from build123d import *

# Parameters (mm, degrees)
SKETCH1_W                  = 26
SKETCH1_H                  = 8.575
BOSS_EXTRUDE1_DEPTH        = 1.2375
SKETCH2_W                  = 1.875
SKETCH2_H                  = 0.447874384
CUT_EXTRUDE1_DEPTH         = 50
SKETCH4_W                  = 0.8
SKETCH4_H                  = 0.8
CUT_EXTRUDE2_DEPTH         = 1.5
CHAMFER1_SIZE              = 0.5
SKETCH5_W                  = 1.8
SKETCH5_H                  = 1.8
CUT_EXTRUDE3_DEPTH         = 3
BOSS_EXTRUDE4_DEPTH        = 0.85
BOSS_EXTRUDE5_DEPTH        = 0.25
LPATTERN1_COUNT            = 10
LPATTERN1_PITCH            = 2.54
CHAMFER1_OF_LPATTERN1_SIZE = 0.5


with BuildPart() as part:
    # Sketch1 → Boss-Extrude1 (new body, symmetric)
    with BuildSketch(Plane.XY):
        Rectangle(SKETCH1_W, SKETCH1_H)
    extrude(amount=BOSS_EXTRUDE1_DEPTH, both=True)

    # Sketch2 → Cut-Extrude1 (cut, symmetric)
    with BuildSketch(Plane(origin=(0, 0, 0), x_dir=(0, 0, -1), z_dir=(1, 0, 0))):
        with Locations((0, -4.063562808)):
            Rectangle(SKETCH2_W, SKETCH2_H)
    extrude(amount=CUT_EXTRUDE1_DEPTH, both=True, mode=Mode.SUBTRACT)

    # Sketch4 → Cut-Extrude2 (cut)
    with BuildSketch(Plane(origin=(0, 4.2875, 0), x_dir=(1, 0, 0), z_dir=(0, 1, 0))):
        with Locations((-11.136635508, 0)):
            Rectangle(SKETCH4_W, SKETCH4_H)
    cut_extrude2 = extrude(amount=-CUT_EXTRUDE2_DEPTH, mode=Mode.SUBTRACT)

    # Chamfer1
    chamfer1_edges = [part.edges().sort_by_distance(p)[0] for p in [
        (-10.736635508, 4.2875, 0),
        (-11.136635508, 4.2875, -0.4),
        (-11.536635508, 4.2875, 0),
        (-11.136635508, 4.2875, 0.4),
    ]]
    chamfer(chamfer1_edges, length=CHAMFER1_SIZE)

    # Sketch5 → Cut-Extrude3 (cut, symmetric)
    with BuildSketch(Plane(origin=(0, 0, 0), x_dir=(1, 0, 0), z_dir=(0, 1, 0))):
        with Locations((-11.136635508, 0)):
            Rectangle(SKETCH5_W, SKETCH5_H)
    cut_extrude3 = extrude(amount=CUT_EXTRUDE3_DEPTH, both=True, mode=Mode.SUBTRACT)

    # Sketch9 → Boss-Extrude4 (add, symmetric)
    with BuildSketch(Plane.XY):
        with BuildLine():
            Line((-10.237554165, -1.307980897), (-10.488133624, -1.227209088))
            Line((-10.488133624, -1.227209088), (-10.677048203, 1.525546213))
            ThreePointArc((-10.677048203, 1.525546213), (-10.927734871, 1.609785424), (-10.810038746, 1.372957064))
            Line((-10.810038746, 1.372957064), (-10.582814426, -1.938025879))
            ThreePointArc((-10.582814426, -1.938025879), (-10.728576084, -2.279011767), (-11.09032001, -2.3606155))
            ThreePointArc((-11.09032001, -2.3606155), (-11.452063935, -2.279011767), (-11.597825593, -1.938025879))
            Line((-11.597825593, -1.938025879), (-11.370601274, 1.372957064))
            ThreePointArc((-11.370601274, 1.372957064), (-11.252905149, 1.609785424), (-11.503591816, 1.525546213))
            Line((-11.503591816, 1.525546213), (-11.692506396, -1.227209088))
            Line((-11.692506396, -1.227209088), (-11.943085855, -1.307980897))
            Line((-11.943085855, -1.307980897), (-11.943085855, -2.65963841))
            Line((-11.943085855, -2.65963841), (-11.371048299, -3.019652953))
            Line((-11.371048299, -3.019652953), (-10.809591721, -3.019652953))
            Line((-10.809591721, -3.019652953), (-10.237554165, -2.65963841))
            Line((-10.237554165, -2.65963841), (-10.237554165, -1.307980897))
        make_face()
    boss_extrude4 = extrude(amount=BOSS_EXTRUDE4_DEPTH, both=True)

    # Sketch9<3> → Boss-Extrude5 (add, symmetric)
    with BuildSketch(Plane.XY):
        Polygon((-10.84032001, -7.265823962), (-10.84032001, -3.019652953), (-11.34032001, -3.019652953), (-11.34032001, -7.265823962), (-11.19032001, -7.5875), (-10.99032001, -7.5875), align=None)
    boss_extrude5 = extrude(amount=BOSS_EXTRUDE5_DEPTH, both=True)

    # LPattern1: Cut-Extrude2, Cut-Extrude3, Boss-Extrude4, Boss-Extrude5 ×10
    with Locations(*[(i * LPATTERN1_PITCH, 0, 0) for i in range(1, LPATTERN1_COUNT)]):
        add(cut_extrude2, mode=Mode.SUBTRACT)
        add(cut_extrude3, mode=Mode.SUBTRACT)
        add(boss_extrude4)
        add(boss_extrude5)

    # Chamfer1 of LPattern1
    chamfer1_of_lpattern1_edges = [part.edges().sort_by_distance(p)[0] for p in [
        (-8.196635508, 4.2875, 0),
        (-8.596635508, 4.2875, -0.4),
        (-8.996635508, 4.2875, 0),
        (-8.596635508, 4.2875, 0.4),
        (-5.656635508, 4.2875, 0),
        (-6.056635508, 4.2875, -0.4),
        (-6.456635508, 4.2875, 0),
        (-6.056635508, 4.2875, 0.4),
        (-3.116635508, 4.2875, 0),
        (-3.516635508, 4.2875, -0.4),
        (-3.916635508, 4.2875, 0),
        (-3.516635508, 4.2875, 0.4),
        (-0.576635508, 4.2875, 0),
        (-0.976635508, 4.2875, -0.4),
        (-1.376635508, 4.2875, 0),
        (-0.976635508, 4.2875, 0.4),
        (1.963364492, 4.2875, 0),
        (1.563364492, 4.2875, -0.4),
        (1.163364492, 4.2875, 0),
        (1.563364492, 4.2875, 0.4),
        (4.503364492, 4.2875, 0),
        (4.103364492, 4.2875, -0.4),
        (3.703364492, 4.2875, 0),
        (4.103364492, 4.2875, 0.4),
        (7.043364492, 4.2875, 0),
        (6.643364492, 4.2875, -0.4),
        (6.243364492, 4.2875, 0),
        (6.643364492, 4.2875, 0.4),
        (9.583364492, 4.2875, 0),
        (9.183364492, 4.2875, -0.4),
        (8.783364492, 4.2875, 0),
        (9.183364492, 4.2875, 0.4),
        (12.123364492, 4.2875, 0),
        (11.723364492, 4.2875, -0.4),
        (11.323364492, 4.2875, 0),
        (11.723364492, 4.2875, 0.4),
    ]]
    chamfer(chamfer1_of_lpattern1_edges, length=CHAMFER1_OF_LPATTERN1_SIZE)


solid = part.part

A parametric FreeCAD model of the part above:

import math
import FreeCAD as App
import Part
import Sketcher
Q = App.Units.Quantity


def edges_at(feature, points):
    """Names of the edges that pass closest to the given points."""
    edges = feature.Shape.Edges
    near = lambda p: min(range(len(edges)), key=lambda i: edges[i].distToShape(Part.Vertex(*p))[0])
    return sorted({f"Edge{near(p) + 1}" for p in points})


def add_polygon(sketch, points):
    """Adds a closed chain of lines whose ends are joined by coincident constraints."""
    first, n = sketch.GeometryCount, len(points)
    for a, b in zip(points, points[1:] + points[:1]):
        sketch.addGeometry(Part.LineSegment(App.Vector(*a, 0), App.Vector(*b, 0)), False)
    for i in range(n):
        sketch.addConstraint(Sketcher.Constraint("Coincident", first + i, 2, first + (i + 1) % n, 1))

doc = App.newDocument("Part")
body = doc.addObject("PartDesign::Body", "Body")

# Sketch on XY plane
sketch1 = body.newObject("Sketcher::SketchObject", "Sketch")
sketch1.AttachmentSupport = (doc.getObject("XY_Plane"), [""])
sketch1.MapMode = "FlatFace"
add_polygon(sketch1, [(-13, 4.2875), (-13, -4.2875), (13, -4.2875), (13, 4.2875)])  # lines 0-3
sketch1.addConstraint([
    Sketcher.Constraint("Vertical", 0),
    Sketcher.Constraint("Horizontal", 1),
    Sketcher.Constraint("Vertical", 2),
    Sketcher.Constraint("Horizontal", 3),
    Sketcher.Constraint("Symmetric", 0, 2, 2, 2, -1, 1),
    Sketcher.Constraint("DistanceX", 1, 1, 1, 2, Q("26 mm")),
    Sketcher.Constraint("DistanceY", 0, 2, 0, 1, Q("8.575 mm")),
])
pad1 = body.newObject("PartDesign::Pad", "Pad")
pad1.Profile = sketch1
pad1.Length = 2.475
pad1.Midplane = True

# Sketch on YZ plane
sketch2 = body.newObject("Sketcher::SketchObject", "Sketch001")
sketch2.AttachmentSupport = (doc.getObject("YZ_Plane"), [""])
sketch2.MapMode = "FlatFace"
add_polygon(sketch2, [(-3.839626, 0.9375), (-4.2875, 0.9375), (-4.2875, -0.9375), (-3.839626, -0.9375)])  # lines 0-3
sketch2.addConstraint([
    Sketcher.Constraint("Horizontal", 0),
    Sketcher.Constraint("Vertical", 1),
    Sketcher.Constraint("Horizontal", 2),
    Sketcher.Constraint("Vertical", 3),
    Sketcher.Constraint("DistanceY", 1, 2, 1, 1, Q("1.875 mm")),
    Sketcher.Constraint("DistanceX", 0, 2, -1, 1, Q("4.2875 mm")),
    Sketcher.Constraint("DistanceY", -1, 1, 0, 2, Q("0.9375 mm")),
    Sketcher.Constraint("DistanceX", 0, 2, 0, 1, Q("0.447874 mm")),
])
pocket1 = body.newObject("PartDesign::Pocket", "Pocket")
pocket1.Profile = sketch2
pocket1.Length = 100
pocket1.Midplane = True

# Sketch on XZ plane
sketch3 = body.newObject("Sketcher::SketchObject", "Sketch002")
sketch3.AttachmentSupport = (doc.getObject("XZ_Plane"), [""])
sketch3.MapMode = "FlatFace"
sketch3.AttachmentOffset = App.Placement(App.Vector(0, 0, -4.2875), App.Rotation())
add_polygon(sketch3, [(-11.536636, -0.4), (-11.536636, 0.4), (-10.736636, 0.4), (-10.736636, -0.4)])  # lines 0-3
sketch3.addConstraint([
    Sketcher.Constraint("Vertical", 0),
    Sketcher.Constraint("Horizontal", 1),
    Sketcher.Constraint("Vertical", 2),
    Sketcher.Constraint("Horizontal", 3),
    Sketcher.Constraint("Equal", 3, 0),
    Sketcher.Constraint("DistanceX", 1, 1, 1, 2, Q("0.8 mm")),
    Sketcher.Constraint("DistanceY", -1, 1, 0, 2, Q("0.4 mm")),
    Sketcher.Constraint("DistanceX", 0, 2, -1, 1, Q("11.536636 mm")),
])
pocket2 = body.newObject("PartDesign::Pocket", "Pocket001")
pocket2.Profile = sketch3
pocket2.Length = 1.5
pocket2.Reversed = True
doc.recompute()

chamfer = body.newObject("PartDesign::Chamfer", "Chamfer")
chamfer.Base = (pocket2, edges_at(pocket2, [
    (-10.737, 4.287, 0),
    (-11.137, 4.287, -0.4),
    (-11.537, 4.287, 0),
    (-11.137, 4.287, 0.4),
]))
chamfer.Size = 0.5

# Sketch on XZ plane
sketch4 = body.newObject("Sketcher::SketchObject", "Sketch003")
sketch4.AttachmentSupport = (doc.getObject("XZ_Plane"), [""])
sketch4.MapMode = "FlatFace"
add_polygon(sketch4, [(-12.036636, -0.9), (-12.036636, 0.9), (-10.236636, 0.9), (-10.236636, -0.9)])  # lines 0-3
sketch4.addConstraint([
    Sketcher.Constraint("Vertical", 0),
    Sketcher.Constraint("Horizontal", 1),
    Sketcher.Constraint("Vertical", 2),
    Sketcher.Constraint("Horizontal", 3),
    Sketcher.Constraint("Equal", 3, 0),
    Sketcher.Constraint("DistanceX", 1, 1, 1, 2, Q("1.8 mm")),
    Sketcher.Constraint("DistanceY", -1, 1, 0, 2, Q("0.9 mm")),
    Sketcher.Constraint("DistanceX", 0, 2, -1, 1, Q("12.036636 mm")),
])
pocket3 = body.newObject("PartDesign::Pocket", "Pocket002")
pocket3.Profile = sketch4
pocket3.Length = 6
pocket3.Midplane = True

# Sketch on XY plane
sketch5 = body.newObject("Sketcher::SketchObject", "Sketch004")
sketch5.AttachmentSupport = (doc.getObject("XY_Plane"), [""])
sketch5.MapMode = "FlatFace"
sketch5.addGeometry([
    Part.LineSegment(App.Vector(-10.237554, -1.307981, 0), App.Vector(-10.488134, -1.227209, 0)),  # 0
    Part.LineSegment(App.Vector(-10.488134, -1.227209, 0), App.Vector(-10.677048, 1.525546, 0)),  # 1
    Part.ArcOfCircle(Part.Circle(App.Vector(-10.819838, 1.515747, 0), App.Vector(0, 0, 1), 0.143126), math.radians(3.925908), math.radians(273.925908)),  # 2
    Part.LineSegment(App.Vector(-10.810039, 1.372957, 0), App.Vector(-10.582814, -1.938026, 0)),  # 3
    Part.ArcOfCircle(Part.Circle(App.Vector(-10.989281, -1.965921, 0), App.Vector(0, 0, 1), 0.407422), math.radians(-104.35898), math.radians(3.925908)),  # 4
    Part.ArcOfCircle(Part.Circle(App.Vector(-11.191359, -1.965921, 0), App.Vector(0, 0, 1), 0.407422), math.radians(176.074092), math.radians(284.35898)),  # 5
    Part.LineSegment(App.Vector(-11.597826, -1.938026, 0), App.Vector(-11.370601, 1.372957, 0)),  # 6
    Part.ArcOfCircle(Part.Circle(App.Vector(-11.360802, 1.515747, 0), App.Vector(0, 0, 1), 0.143126), math.radians(-93.925908), math.radians(176.074092)),  # 7
    Part.LineSegment(App.Vector(-11.503592, 1.525546, 0), App.Vector(-11.692506, -1.227209, 0)),  # 8
    Part.LineSegment(App.Vector(-11.692506, -1.227209, 0), App.Vector(-11.943086, -1.307981, 0)),  # 9
    Part.LineSegment(App.Vector(-11.943086, -1.307981, 0), App.Vector(-11.943086, -2.659638, 0)),  # 10
    Part.LineSegment(App.Vector(-11.943086, -2.659638, 0), App.Vector(-11.371048, -3.019653, 0)),  # 11
    Part.LineSegment(App.Vector(-11.371048, -3.019653, 0), App.Vector(-10.809592, -3.019653, 0)),  # 12
    Part.LineSegment(App.Vector(-10.809592, -3.019653, 0), App.Vector(-10.237554, -2.659638, 0)),  # 13
    Part.LineSegment(App.Vector(-10.237554, -2.659638, 0), App.Vector(-10.237554, -1.307981, 0)),  # 14
], False)
sketch5.addConstraint([
    Sketcher.Constraint("Coincident", 0, 2, 1, 1),
    Sketcher.Constraint("Tangent", 1, 2, 2, 1),
    Sketcher.Constraint("Coincident", 2, 2, 3, 1),
    Sketcher.Constraint("Tangent", 3, 2, 4, 2),
    Sketcher.Constraint("Coincident", 4, 1, 5, 2),
    Sketcher.Constraint("Tangent", 5, 1, 6, 1),
    Sketcher.Constraint("Coincident", 6, 2, 7, 1),
    Sketcher.Constraint("Tangent", 7, 2, 8, 1),
    Sketcher.Constraint("Coincident", 8, 2, 9, 1),
    Sketcher.Constraint("Coincident", 9, 2, 10, 1),
    Sketcher.Constraint("Coincident", 10, 2, 11, 1),
    Sketcher.Constraint("Coincident", 11, 2, 12, 1),
    Sketcher.Constraint("Coincident", 12, 2, 13, 1),
    Sketcher.Constraint("Coincident", 13, 2, 14, 1),
    Sketcher.Constraint("Coincident", 14, 2, 0, 1),
    Sketcher.Constraint("Vertical", 10),
    Sketcher.Constraint("Horizontal", 12),
    Sketcher.Constraint("Vertical", 14),
    Sketcher.Constraint("Equal", 4, 5),
    Sketcher.Constraint("Equal", 2, 7),
    Sketcher.Constraint("Parallel", 1, 3),
    Sketcher.Constraint("Parallel", 6, 8),
    Sketcher.Constraint("Horizontal", 4, 3, 5, 3),
    Sketcher.Constraint("Horizontal", 2, 3, 7, 3),
    Sketcher.Constraint("Horizontal", 3, 2, 5, 1),
    Sketcher.Constraint("Horizontal", 2, 2, 6, 2),
    Sketcher.Constraint("Horizontal", 0, 2, 8, 2),
    Sketcher.Constraint("Horizontal", 10, 2, 13, 2),
    Sketcher.Constraint("Horizontal", 9, 2, 14, 2),
    Sketcher.Constraint("Equal", 0, 9),
    Sketcher.Constraint("Equal", 11, 13),
    Sketcher.Constraint("Radius", 2, Q("0.143126 mm")),
    Sketcher.Constraint("Radius", 4, Q("0.407422 mm")),
    Sketcher.Constraint("DistanceX", 7, 3, -1, 1, Q("11.360802 mm")),
    Sketcher.Constraint("DistanceX", 6, 2, -1, 1, Q("11.370601 mm")),
    Sketcher.Constraint("DistanceY", 2, 3, 1, 2, Q("0.009799 mm")),
    Sketcher.Constraint("Distance", 1, Q("2.75923 mm")),
    Sketcher.Constraint("Distance", 3, Q("3.318771 mm")),
    Sketcher.Constraint("DistanceX", 12, 1, 12, 2, Q("0.561457 mm")),
    Sketcher.Constraint("DistanceY", 10, 2, 10, 1, Q("1.351658 mm")),
    Sketcher.Constraint("DistanceX", 2, 3, -1, 1, Q("10.819838 mm")),
    Sketcher.Constraint("DistanceY", 4, 3, -1, 1, Q("1.965921 mm")),
    Sketcher.Constraint("DistanceY", 9, 2, -1, 1, Q("1.307981 mm")),
    Sketcher.Constraint("DistanceX", 9, 2, 8, 2, Q("0.250579 mm")),
    Sketcher.Constraint("Distance", 11, Q("0.675898 mm")),
])
pad2 = body.newObject("PartDesign::Pad", "Pad001")
pad2.Profile = sketch5
pad2.Length = 1.7
pad2.Midplane = True

# Sketch on XY plane
sketch6 = body.newObject("Sketcher::SketchObject", "Sketch005")
sketch6.AttachmentSupport = (doc.getObject("XY_Plane"), [""])
sketch6.MapMode = "FlatFace"
add_polygon(sketch6, [(-10.84032, -7.265824), (-10.84032, -3.019653), (-11.34032, -3.019653), (-11.34032, -7.265824), (-11.19032, -7.5875), (-10.99032, -7.5875)])  # lines 0-5
sketch6.addConstraint([
    Sketcher.Constraint("Vertical", 0),
    Sketcher.Constraint("Horizontal", 1),
    Sketcher.Constraint("Vertical", 2),
    Sketcher.Constraint("Horizontal", 4),
    Sketcher.Constraint("Horizontal", 2, 2, 5, 2),
    Sketcher.Constraint("Equal", 3, 5),
    Sketcher.Constraint("Angle", 3, Q("-65 deg")),
    Sketcher.Constraint("DistanceX", 1, 2, 1, 1, Q("0.5 mm")),
    Sketcher.Constraint("DistanceX", 4, 1, 4, 2, Q("0.2 mm")),
    Sketcher.Constraint("DistanceY", 0, 1, 0, 2, Q("4.246171 mm")),
    Sketcher.Constraint("DistanceY", 3, 2, -1, 1, Q("7.5875 mm")),
    Sketcher.Constraint("DistanceX", 0, 2, -1, 1, Q("10.84032 mm")),
])
pad3 = body.newObject("PartDesign::Pad", "Pad002")
pad3.Profile = sketch6
pad3.Length = 0.5
pad3.Midplane = True
doc.recompute()

linearpattern = body.newObject("PartDesign::LinearPattern", "LinearPattern")
linearpattern.Originals = [pocket2, pocket3, pad2, pad3]
linearpattern.Direction = (doc.getObject("X_Axis"), [""])
linearpattern.Mode = "offset"
linearpattern.Offset = 2.54
linearpattern.Occurrences = 10
body.Tip = linearpattern
doc.recompute()

chamfer2 = body.newObject("PartDesign::Chamfer", "Chamfer001")
chamfer2.Base = (linearpattern, edges_at(linearpattern, [
    (-8.197, 4.287, 0),
    (-8.597, 4.287, -0.4),
    (-8.997, 4.287, 0),
    (-8.597, 4.287, 0.4),
    (-5.657, 4.287, 0),
    (-6.057, 4.287, -0.4),
    (-6.457, 4.287, 0),
    (-6.057, 4.287, 0.4),
    (-3.117, 4.287, 0),
    (-3.517, 4.287, -0.4),
    (-3.917, 4.287, 0),
    (-3.517, 4.287, 0.4),
    (-0.577, 4.287, 0),
    (-0.977, 4.287, -0.4),
    (-1.377, 4.287, 0),
    (-0.977, 4.287, 0.4),
    (1.963, 4.287, 0),
    (1.563, 4.287, -0.4),
    (1.163, 4.287, 0),
    (1.563, 4.287, 0.4),
    (4.503, 4.287, 0),
    (4.103, 4.287, -0.4),
    (3.703, 4.287, 0),
    (4.103, 4.287, 0.4),
    (7.043, 4.287, 0),
    (6.643, 4.287, -0.4),
    (6.243, 4.287, 0),
    (6.643, 4.287, 0.4),
    (9.583, 4.287, 0),
    (9.183, 4.287, -0.4),
    (8.783, 4.287, 0),
    (9.183, 4.287, 0.4),
    (12.123, 4.287, 0),
    (11.723, 4.287, -0.4),
    (11.323, 4.287, 0),
    (11.723, 4.287, 0.4),
]))
chamfer2.Size = 0.5

doc.recompute()
